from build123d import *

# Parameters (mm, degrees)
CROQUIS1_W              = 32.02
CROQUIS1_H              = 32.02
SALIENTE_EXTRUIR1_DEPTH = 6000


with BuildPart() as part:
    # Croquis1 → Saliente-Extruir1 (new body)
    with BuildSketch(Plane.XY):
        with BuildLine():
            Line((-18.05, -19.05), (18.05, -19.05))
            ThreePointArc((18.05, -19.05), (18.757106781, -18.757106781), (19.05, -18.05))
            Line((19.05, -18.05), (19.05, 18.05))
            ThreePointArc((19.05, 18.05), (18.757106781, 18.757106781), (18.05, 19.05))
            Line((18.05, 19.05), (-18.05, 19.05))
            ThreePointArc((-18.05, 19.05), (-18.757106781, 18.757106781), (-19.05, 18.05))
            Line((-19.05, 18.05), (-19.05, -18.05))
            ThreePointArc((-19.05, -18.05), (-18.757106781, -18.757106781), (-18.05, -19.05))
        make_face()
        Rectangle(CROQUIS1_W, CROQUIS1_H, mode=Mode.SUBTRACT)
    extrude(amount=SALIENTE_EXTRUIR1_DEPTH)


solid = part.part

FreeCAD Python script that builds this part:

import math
import FreeCAD as App
import Part
import Sketcher
Q = App.Units.Quantity

doc = App.newDocument("Part")
body = doc.addObject("PartDesign::Body", "Body")

sketch1 = doc.addObject("Sketcher::SketchObject", "Sketch")
body.addObject(sketch1)
sketch1.AttachmentSupport = (doc.XY_Plane, [""])
sketch1.MapMode = "FlatFace"
sketch1.addGeometry(Part.LineSegment(App.Vector(-18.05, -19.05, 0), App.Vector(18.05, -19.05, 0)), False)
sketch1.addGeometry(Part.ArcOfCircle(Part.Circle(App.Vector(18.05, -18.05, 0), App.Vector(0, 0, 1), 1), math.radians(-90), math.radians(0)), False)
sketch1.addGeometry(Part.LineSegment(App.Vector(19.05, -18.05, 0), App.Vector(19.05, 18.05, 0)), False)
sketch1.addGeometry(Part.ArcOfCircle(Part.Circle(App.Vector(18.05, 18.05, 0), App.Vector(0, 0, 1), 1), math.radians(0), math.radians(90)), False)
sketch1.addGeometry(Part.LineSegment(App.Vector(18.05, 19.05, 0), App.Vector(-18.05, 19.05, 0)), False)
sketch1.addGeometry(Part.ArcOfCircle(Part.Circle(App.Vector(-18.05, 18.05, 0), App.Vector(0, 0, 1), 1), math.radians(90), math.radians(180)), False)
sketch1.addGeometry(Part.LineSegment(App.Vector(-19.05, 18.05, 0), App.Vector(-19.05, -18.05, 0)), False)
sketch1.addGeometry(Part.ArcOfCircle(Part.Circle(App.Vector(-18.05, -18.05, 0), App.Vector(0, 0, 1), 1), math.radians(-180), math.radians(-90)), False)
sketch1.addGeometry(Part.LineSegment(App.Vector(16.01, -16.01, 0), App.Vector(-16.01, -16.01, 0)), False)
sketch1.addGeometry(Part.LineSegment(App.Vector(-16.01, -16.01, 0), App.Vector(-16.01, 16.01, 0)), False)
sketch1.addGeometry(Part.LineSegment(App.Vector(-16.01, 16.01, 0), App.Vector(16.01, 16.01, 0)), False)
sketch1.addGeometry(Part.LineSegment(App.Vector(16.01, 16.01, 0), App.Vector(16.01, -16.01, 0)), False)
sketch1.addConstraint(Sketcher.Constraint("Tangent", 0, 2, 1, 1))
sketch1.addConstraint(Sketcher.Constraint("Tangent", 1, 2, 2, 1))
sketch1.addConstraint(Sketcher.Constraint("Tangent", 2, 2, 3, 1))
sketch1.addConstraint(Sketcher.Constraint("Tangent", 3, 2, 4, 1))
sketch1.addConstraint(Sketcher.Constraint("Tangent", 4, 2, 5, 1))
sketch1.addConstraint(Sketcher.Constraint("Tangent", 5, 2, 6, 1))
sketch1.addConstraint(Sketcher.Constraint("Tangent", 6, 2, 7, 1))
sketch1.addConstraint(Sketcher.Constraint("Tangent", 7, 2, 0, 1))
sketch1.addConstraint(Sketcher.Constraint("Coincident", 8, 2, 9, 1))
sketch1.addConstraint(Sketcher.Constraint("Coincident", 9, 2, 10, 1))
sketch1.addConstraint(Sketcher.Constraint("Coincident", 10, 2, 11, 1))
sketch1.addConstraint(Sketcher.Constraint("Coincident", 11, 2, 8, 1))
sketch1.addConstraint(Sketcher.Constraint("Horizontal", 0))
sketch1.addConstraint(Sketcher.Constraint("Vertical", 2))
sketch1.addConstraint(Sketcher.Constraint("Horizontal", 4))
sketch1.addConstraint(Sketcher.Constraint("Vertical", 6))
sketch1.addConstraint(Sketcher.Constraint("Horizontal", 8))
sketch1.addConstraint(Sketcher.Constraint("Vertical", 9))
sketch1.addConstraint(Sketcher.Constraint("Horizontal", 10))
sketch1.addConstraint(Sketcher.Constraint("Vertical", 11))
sketch1.addConstraint(Sketcher.Constraint("Equal", 1, 3))
sketch1.addConstraint(Sketcher.Constraint("Equal", 3, 5))
sketch1.addConstraint(Sketcher.Constraint("Equal", 5, 7))
sketch1.addConstraint(Sketcher.Constraint("Symmetric", 1, 3, 5, 3, -1, 1))
sketch1.addConstraint(Sketcher.Constraint("Symmetric", 8, 2, 10, 2, -1, 1))
sketch1.addConstraint(Sketcher.Constraint("Equal", 4, 2))
sketch1.addConstraint(Sketcher.Constraint("Equal", 10, 9))
sketch1.addConstraint(Sketcher.Constraint("Radius", 1, Q("1 mm")))
sketch1.addConstraint(Sketcher.Constraint("DistanceX", 0, 1, 0, 2, Q("36.1 mm")))
sketch1.addConstraint(Sketcher.Constraint("DistanceX", 8, 2, 8, 1, Q("32.02 mm")))
pad1 = doc.addObject("PartDesign::Pad", "Pad")
body.addObject(pad1)
pad1.Profile = sketch1
pad1.Length = 6000

doc.recompute()
